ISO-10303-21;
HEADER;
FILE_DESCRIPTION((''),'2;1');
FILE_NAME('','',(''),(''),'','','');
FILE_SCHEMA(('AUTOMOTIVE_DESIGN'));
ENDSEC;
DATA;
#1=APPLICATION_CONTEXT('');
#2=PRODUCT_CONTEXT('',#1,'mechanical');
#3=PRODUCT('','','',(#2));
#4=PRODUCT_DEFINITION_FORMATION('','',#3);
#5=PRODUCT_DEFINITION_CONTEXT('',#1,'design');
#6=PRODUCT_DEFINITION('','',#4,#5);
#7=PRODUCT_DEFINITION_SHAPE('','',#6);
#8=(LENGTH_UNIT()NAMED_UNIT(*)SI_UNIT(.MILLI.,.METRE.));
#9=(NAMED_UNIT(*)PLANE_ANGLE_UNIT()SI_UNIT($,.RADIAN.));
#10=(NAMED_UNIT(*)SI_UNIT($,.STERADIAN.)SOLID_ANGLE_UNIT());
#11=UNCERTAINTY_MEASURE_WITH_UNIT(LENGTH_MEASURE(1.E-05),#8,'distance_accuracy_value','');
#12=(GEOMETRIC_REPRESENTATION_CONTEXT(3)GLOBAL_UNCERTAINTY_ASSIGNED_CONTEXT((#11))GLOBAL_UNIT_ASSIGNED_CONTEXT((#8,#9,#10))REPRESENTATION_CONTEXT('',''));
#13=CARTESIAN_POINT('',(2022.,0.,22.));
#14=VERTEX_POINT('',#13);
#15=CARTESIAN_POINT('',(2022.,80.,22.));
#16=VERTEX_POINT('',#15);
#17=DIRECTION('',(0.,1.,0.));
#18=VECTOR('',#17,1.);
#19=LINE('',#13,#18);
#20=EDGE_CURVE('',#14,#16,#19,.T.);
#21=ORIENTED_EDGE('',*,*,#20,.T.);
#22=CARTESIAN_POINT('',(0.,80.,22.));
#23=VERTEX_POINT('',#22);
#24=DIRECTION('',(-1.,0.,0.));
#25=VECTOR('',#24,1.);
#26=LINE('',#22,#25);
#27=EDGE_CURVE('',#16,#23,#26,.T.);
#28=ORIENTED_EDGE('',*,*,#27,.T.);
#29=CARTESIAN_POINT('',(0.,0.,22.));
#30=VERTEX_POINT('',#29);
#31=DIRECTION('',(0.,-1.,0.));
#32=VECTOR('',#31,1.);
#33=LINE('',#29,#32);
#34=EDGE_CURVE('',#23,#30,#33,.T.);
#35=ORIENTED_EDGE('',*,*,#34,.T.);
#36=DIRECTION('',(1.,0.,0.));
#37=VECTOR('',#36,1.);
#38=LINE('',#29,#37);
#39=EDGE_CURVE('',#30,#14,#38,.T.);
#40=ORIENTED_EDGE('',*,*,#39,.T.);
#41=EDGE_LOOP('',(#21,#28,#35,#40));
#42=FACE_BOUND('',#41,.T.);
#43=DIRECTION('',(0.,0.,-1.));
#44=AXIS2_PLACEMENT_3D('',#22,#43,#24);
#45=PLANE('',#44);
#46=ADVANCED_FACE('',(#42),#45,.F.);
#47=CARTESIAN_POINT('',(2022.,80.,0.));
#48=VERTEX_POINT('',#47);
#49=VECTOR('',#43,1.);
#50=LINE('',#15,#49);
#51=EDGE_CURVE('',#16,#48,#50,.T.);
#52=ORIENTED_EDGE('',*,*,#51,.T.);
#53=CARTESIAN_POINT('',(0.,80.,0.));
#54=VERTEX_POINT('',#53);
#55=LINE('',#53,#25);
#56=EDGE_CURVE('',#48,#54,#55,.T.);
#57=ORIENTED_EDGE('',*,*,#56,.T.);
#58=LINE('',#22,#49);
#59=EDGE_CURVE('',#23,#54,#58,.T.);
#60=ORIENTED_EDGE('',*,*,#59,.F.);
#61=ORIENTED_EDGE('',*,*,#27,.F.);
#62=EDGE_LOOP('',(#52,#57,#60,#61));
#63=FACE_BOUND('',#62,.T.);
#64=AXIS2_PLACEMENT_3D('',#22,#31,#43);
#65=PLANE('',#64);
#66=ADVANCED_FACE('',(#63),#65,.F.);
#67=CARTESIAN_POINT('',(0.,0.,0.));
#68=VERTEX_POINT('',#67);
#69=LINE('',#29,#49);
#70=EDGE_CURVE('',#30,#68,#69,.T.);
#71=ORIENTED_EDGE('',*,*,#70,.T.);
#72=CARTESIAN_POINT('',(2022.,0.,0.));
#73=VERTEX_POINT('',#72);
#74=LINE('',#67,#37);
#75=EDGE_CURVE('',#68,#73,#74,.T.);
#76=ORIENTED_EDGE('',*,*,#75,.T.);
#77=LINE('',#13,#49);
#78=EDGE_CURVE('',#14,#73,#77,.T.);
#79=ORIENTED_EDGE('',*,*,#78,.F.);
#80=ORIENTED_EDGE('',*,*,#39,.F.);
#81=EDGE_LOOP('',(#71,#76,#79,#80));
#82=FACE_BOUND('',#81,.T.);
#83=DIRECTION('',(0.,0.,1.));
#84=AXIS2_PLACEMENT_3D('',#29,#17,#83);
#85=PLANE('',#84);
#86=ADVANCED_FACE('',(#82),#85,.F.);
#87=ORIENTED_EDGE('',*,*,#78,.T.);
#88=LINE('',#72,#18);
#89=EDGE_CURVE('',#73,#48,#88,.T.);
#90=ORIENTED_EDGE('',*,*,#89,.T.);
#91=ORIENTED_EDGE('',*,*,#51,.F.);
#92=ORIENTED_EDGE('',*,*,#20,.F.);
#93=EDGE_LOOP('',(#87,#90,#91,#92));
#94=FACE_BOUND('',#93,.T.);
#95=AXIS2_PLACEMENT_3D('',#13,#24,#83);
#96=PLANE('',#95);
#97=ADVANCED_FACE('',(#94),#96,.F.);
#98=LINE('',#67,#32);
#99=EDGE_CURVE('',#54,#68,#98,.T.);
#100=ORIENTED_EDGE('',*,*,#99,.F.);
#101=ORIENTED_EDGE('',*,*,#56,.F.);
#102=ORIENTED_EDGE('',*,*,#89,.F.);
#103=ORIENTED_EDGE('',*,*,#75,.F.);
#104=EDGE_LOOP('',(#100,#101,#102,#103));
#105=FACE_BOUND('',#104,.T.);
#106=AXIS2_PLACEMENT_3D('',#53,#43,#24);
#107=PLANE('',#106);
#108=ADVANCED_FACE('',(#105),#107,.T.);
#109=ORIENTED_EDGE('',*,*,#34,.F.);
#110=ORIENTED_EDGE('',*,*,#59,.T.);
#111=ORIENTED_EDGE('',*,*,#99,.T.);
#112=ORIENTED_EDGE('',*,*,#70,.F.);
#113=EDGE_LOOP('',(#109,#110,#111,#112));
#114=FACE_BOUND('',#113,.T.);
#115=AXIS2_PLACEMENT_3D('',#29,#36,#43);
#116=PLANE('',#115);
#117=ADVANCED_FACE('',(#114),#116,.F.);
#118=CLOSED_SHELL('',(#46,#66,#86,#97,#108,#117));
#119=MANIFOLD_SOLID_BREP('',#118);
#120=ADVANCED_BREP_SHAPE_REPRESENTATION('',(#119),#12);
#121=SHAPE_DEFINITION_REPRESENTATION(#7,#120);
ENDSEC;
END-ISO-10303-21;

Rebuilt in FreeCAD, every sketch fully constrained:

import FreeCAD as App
import Part
import Sketcher
from FreeCAD import Vector
Q = App.Units.Quantity

doc = App.newDocument("Part")
body = doc.addObject("PartDesign::Body", "Body")

# Sketch on XY plane
sketch1 = body.newObject("Sketcher::SketchObject", "Sketch")
sketch1.AttachmentSupport = (doc.getObject("XY_Plane"), [""])
sketch1.MapMode = "FlatFace"
sketch1.addGeometry([
    Part.LineSegment(Vector(0, 80, 0), Vector(0, 0, 0)),
    Part.LineSegment(Vector(0, 0, 0), Vector(2022, 0, 0)),
    Part.LineSegment(Vector(2022, 0, 0), Vector(2022, 80, 0)),
    Part.LineSegment(Vector(2022, 80, 0), Vector(0, 80, 0)),
], False)
sketch1.addConstraint([
    Sketcher.Constraint("Coincident", 0, 2, 1, 1),
    Sketcher.Constraint("Coincident", 1, 2, 2, 1),
    Sketcher.Constraint("Coincident", 2, 2, 3, 1),
    Sketcher.Constraint("Coincident", 3, 2, 0, 1),
    Sketcher.Constraint("Vertical", 0),
    Sketcher.Constraint("Horizontal", 1),
    Sketcher.Constraint("Vertical", 2),
    Sketcher.Constraint("Horizontal", 3),
    Sketcher.Constraint("Coincident", 0, 2, -1, 1),
    Sketcher.Constraint("DistanceX", 1, 1, 1, 2, Q("2022 mm")),
    Sketcher.Constraint("DistanceY", 0, 2, 0, 1, Q("80 mm")),
])
pad1 = body.newObject("PartDesign::Pad", "Pad")
pad1.Profile = sketch1
pad1.Length = 22

doc.recompute()
